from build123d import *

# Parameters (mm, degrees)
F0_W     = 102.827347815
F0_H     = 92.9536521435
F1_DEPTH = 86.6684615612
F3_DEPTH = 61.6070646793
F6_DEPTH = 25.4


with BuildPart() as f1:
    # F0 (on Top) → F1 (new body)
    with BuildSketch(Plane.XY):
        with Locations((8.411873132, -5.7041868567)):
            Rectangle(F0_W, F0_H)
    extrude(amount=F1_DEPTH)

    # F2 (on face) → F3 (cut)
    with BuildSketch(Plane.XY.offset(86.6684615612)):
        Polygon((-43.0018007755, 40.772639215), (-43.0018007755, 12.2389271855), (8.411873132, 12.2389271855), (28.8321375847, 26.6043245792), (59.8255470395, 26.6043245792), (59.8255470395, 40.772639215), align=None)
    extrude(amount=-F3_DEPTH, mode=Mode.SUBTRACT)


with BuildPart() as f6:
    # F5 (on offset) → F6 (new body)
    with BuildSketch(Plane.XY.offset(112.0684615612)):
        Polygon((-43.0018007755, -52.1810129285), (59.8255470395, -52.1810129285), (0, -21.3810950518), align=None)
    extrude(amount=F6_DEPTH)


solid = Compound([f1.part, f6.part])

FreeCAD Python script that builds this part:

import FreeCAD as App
import Part
import Sketcher
from FreeCAD import Vector
Q = App.Units.Quantity


def add_polygon(sketch, points):
    """Adds a closed chain of lines whose ends are joined by coincident constraints."""
    first, n = sketch.GeometryCount, len(points)
    for a, b in zip(points, points[1:] + points[:1]):
        sketch.addGeometry(Part.LineSegment(App.Vector(*a, 0), App.Vector(*b, 0)), False)
    for i in range(n):
        sketch.addConstraint(Sketcher.Constraint("Coincident", first + i, 2, first + (i + 1) % n, 1))

doc = App.newDocument("Part")
body = doc.addObject("PartDesign::Body", "Body")

# Sketch on XY plane
sketch1 = body.newObject("Sketcher::SketchObject", "Sketch")
sketch1.AttachmentSupport = (doc.getObject("XY_Plane"), [""])
sketch1.MapMode = "FlatFace"
add_polygon(sketch1, [(-43, 41), (-43, -52), (60, -52), (60, 41)])  # lines 0-3
sketch1.addConstraint([
    Sketcher.Constraint("Vertical", 0),
    Sketcher.Constraint("Horizontal", 1),
    Sketcher.Constraint("Vertical", 2),
    Sketcher.Constraint("Horizontal", 3),
    Sketcher.Constraint("DistanceX", 0, 2, -1, 1, Q("43.001801 mm")),
    Sketcher.Constraint("DistanceX", 1, 1, 1, 2, Q("102.827348 mm")),
    Sketcher.Constraint("DistanceY", 0, 2, 0, 1, Q("92.953652 mm")),
    Sketcher.Constraint("DistanceY", -1, 1, 2, 2, Q("40.772639 mm")),
])
pad1 = body.newObject("PartDesign::Pad", "Pad")
pad1.Profile = sketch1
pad1.Length = 86.668462

# Sketch on XY plane
sketch2 = body.newObject("Sketcher::SketchObject", "Sketch001")
sketch2.AttachmentSupport = (doc.getObject("XY_Plane"), [""])
sketch2.MapMode = "FlatFace"
sketch2.AttachmentOffset = App.Placement(Vector(0, 0, 86.668462), App.Rotation())
add_polygon(sketch2, [(-43, 41), (-43, 12), (8, 12), (29, 27), (60, 27), (60, 41)])  # lines 0-5
sketch2.addConstraint([
    Sketcher.Constraint("Vertical", 0),
    Sketcher.Constraint("Horizontal", 1),
    Sketcher.Constraint("Horizontal", 3),
    Sketcher.Constraint("Vertical", 4),
    Sketcher.Constraint("Horizontal", 5),
    Sketcher.Constraint("DistanceX", 3, 1, 3, 2, Q("30.993409 mm")),
    Sketcher.Constraint("DistanceX", 0, 2, -1, 1, Q("43.001801 mm")),
    Sketcher.Constraint("DistanceX", 1, 1, 1, 2, Q("51.413674 mm")),
    Sketcher.Constraint("DistanceX", 5, 2, 5, 1, Q("102.827348 mm")),
    Sketcher.Constraint("DistanceY", 0, 2, 0, 1, Q("28.533712 mm")),
    Sketcher.Constraint("DistanceY", 4, 1, 4, 2, Q("14.168315 mm")),
    Sketcher.Constraint("DistanceY", -1, 1, 4, 2, Q("40.772639 mm")),
])
pocket1 = body.newObject("PartDesign::Pocket", "Pocket")
pocket1.Profile = sketch2
pocket1.Length = 61.607065
body2 = doc.addObject("PartDesign::Body", "Body001")

# Sketch on XY plane
sketch3 = body2.newObject("Sketcher::SketchObject", "Sketch002")
sketch3.AttachmentSupport = (doc.getObject("XY_Plane001"), [""])
sketch3.MapMode = "FlatFace"
sketch3.AttachmentOffset = App.Placement(Vector(0, 0, 112.068462), App.Rotation())
add_polygon(sketch3, [(-43, -52), (60, -52), (0, -21)])  # lines 0-2
sketch3.addConstraint([
    Sketcher.Constraint("Horizontal", 0),
    Sketcher.Constraint("PointOnObject", 1, 2, -2),
    Sketcher.Constraint("DistanceX", 2, 2, -1, 1, Q("43.001801 mm")),
    Sketcher.Constraint("DistanceX", 0, 1, 0, 2, Q("102.827348 mm")),
    Sketcher.Constraint("Distance", 1, Q("67.288417 mm")),
    Sketcher.Constraint("DistanceY", 0, 2, -1, 1, Q("52.181013 mm")),
])
pad2 = body2.newObject("PartDesign::Pad", "Pad001")
pad2.Profile = sketch3
pad2.Length = Q("1 in")

doc.recompute()
